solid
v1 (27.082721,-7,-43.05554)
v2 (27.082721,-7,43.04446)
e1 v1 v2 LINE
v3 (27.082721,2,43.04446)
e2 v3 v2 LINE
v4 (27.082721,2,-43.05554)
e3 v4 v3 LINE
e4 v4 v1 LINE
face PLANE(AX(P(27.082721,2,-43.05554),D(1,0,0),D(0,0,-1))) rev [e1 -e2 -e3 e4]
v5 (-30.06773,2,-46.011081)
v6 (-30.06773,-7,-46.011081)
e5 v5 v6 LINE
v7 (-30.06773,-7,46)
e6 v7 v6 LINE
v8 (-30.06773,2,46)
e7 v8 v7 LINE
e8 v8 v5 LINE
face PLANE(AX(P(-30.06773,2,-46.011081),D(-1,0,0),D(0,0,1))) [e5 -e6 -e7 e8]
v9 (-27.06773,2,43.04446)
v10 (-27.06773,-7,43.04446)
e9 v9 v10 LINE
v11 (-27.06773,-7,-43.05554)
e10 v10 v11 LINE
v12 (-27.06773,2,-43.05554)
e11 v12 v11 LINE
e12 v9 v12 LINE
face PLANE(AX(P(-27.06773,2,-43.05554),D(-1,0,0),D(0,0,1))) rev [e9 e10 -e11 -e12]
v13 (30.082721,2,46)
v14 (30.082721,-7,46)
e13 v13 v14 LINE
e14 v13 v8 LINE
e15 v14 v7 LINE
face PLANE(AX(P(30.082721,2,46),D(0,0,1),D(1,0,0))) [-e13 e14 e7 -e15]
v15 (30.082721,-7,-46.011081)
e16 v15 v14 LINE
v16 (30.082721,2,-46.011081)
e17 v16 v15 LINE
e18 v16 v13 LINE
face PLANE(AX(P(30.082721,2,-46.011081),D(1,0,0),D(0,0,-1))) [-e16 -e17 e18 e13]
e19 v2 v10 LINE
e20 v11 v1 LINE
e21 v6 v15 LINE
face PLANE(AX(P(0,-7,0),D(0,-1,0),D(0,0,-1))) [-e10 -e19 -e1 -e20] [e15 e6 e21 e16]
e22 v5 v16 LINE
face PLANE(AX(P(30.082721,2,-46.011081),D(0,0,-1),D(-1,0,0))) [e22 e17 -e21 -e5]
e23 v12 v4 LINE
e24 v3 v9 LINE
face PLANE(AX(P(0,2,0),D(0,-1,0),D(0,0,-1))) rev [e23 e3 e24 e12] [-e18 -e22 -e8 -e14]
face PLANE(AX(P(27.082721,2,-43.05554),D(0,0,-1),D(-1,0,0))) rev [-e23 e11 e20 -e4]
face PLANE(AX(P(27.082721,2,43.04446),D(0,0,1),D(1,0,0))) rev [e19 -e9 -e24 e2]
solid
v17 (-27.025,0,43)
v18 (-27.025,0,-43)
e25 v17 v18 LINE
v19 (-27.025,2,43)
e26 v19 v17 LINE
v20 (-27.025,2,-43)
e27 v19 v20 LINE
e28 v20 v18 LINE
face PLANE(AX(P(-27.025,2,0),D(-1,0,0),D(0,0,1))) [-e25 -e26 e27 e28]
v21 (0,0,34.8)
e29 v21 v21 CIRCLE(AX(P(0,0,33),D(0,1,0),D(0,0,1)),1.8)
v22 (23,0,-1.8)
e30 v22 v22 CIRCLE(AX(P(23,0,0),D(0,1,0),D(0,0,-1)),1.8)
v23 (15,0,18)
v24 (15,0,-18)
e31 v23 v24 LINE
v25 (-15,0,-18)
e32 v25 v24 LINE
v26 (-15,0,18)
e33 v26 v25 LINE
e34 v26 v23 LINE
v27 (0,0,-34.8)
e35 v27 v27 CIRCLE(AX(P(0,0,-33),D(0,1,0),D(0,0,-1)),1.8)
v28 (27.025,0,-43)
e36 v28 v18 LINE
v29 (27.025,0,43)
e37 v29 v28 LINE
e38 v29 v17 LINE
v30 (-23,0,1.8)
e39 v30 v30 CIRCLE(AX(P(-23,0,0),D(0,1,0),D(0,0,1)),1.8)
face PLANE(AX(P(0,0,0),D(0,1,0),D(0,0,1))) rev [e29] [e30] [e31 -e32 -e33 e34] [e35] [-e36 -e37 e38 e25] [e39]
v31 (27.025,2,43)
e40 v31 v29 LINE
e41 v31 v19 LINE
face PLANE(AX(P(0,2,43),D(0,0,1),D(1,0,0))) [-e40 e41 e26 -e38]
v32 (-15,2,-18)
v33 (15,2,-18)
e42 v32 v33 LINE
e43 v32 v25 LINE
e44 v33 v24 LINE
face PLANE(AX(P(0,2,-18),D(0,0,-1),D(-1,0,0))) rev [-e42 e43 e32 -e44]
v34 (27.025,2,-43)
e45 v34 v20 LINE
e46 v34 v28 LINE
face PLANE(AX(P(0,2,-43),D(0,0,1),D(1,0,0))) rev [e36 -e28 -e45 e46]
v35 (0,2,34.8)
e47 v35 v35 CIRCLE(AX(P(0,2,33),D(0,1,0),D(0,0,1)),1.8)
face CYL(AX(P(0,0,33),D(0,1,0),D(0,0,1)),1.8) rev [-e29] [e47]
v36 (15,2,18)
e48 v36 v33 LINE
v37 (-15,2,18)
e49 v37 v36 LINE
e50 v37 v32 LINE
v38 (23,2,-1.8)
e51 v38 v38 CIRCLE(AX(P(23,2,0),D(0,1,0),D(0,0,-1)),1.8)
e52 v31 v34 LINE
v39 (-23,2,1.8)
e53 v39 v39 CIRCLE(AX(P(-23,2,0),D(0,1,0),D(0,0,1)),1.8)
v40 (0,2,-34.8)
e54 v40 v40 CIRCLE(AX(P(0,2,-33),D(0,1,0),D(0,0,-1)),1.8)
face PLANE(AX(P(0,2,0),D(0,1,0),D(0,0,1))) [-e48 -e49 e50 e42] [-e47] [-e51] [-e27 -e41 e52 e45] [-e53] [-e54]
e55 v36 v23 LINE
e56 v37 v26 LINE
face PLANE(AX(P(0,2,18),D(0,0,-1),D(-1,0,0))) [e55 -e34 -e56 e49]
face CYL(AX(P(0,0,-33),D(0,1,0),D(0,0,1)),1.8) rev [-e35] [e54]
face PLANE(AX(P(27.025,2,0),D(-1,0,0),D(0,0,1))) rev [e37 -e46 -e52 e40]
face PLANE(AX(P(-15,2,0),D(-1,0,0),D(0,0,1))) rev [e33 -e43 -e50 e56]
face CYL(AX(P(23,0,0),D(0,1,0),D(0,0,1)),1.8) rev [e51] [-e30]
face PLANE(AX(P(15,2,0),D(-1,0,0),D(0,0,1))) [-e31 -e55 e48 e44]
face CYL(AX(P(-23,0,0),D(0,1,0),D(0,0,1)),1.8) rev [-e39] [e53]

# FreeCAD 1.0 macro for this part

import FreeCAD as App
import Part
import Sketcher
from FreeCAD import Vector
Q = App.Units.Quantity

doc = App.newDocument("Part")
body = doc.addObject("PartDesign::Body", "Body")

# Sketch on XZ plane
sketch1 = body.newObject("Sketcher::SketchObject", "Sketch")
sketch1.AttachmentSupport = (doc.getObject("XZ_Plane"), [""])
sketch1.MapMode = "FlatFace"
sketch1.addGeometry(Part.LineSegment(Vector(-27, -43, 0), Vector(-27, 43, 0)), False)
sketch1.addGeometry(Part.LineSegment(Vector(-27, 43, 0), Vector(27, 43, 0)), False)
sketch1.addGeometry(Part.LineSegment(Vector(27, 43, 0), Vector(27, -43, 0)), False)
sketch1.addGeometry(Part.LineSegment(Vector(27, -43, 0), Vector(-27, -43, 0)), False)
sketch1.addGeometry(Part.LineSegment(Vector(15, 18, 0), Vector(-15, 18, 0)), False)
sketch1.addGeometry(Part.LineSegment(Vector(-15, 18, 0), Vector(-15, -18, 0)), False)
sketch1.addGeometry(Part.LineSegment(Vector(-15, -18, 0), Vector(15, -18, 0)), False)
sketch1.addGeometry(Part.LineSegment(Vector(15, -18, 0), Vector(15, 18, 0)), False)
sketch1.addConstraint(Sketcher.Constraint("Coincident", 0, 2, 1, 1))
sketch1.addConstraint(Sketcher.Constraint("Coincident", 1, 2, 2, 1))
sketch1.addConstraint(Sketcher.Constraint("Coincident", 2, 2, 3, 1))
sketch1.addConstraint(Sketcher.Constraint("Coincident", 3, 2, 0, 1))
sketch1.addConstraint(Sketcher.Constraint("Coincident", 4, 2, 5, 1))
sketch1.addConstraint(Sketcher.Constraint("Coincident", 5, 2, 6, 1))
sketch1.addConstraint(Sketcher.Constraint("Coincident", 6, 2, 7, 1))
sketch1.addConstraint(Sketcher.Constraint("Coincident", 7, 2, 4, 1))
sketch1.addConstraint(Sketcher.Constraint("Vertical", 0))
sketch1.addConstraint(Sketcher.Constraint("Horizontal", 1))
sketch1.addConstraint(Sketcher.Constraint("Vertical", 2))
sketch1.addConstraint(Sketcher.Constraint("Horizontal", 3))
sketch1.addConstraint(Sketcher.Constraint("Horizontal", 4))
sketch1.addConstraint(Sketcher.Constraint("Vertical", 5))
sketch1.addConstraint(Sketcher.Constraint("Horizontal", 6))
sketch1.addConstraint(Sketcher.Constraint("Vertical", 7))
sketch1.addConstraint(Sketcher.Constraint("Symmetric", 0, 2, 2, 2, -1, 1))
sketch1.addConstraint(Sketcher.Constraint("Symmetric", 4, 2, 6, 2, -1, 1))
sketch1.addConstraint(Sketcher.Constraint("DistanceX", 4, 2, 4, 1, Q("30 mm")))
sketch1.addConstraint(Sketcher.Constraint("DistanceY", 0, 1, 0, 2, Q("86 mm")))
sketch1.addConstraint(Sketcher.Constraint("DistanceY", 5, 2, 5, 1, Q("36 mm")))
sketch1.addConstraint(Sketcher.Constraint("DistanceX", 1, 1, 1, 2, Q("54.05 mm")))
pad1 = body.newObject("PartDesign::Pad", "Pad")
pad1.Profile = sketch1
pad1.Length = 2
pad1.Reversed = True

# Sketch on XZ plane
sketch2 = body.newObject("Sketcher::SketchObject", "Sketch001")
sketch2.AttachmentSupport = (doc.getObject("XZ_Plane"), [""])
sketch2.MapMode = "FlatFace"
sketch2.AttachmentOffset = App.Placement(Vector(0, 0, -2), App.Rotation())
sketch2.addGeometry(Part.Circle(Vector(0, 33, 0), Vector(0, 0, 1), 1.8), False)
sketch2.addGeometry(Part.Circle(Vector(-23, 0, 0), Vector(0, 0, 1), 1.8), False)
sketch2.addGeometry(Part.Circle(Vector(0, -33, 0), Vector(0, 0, 1), 1.8), False)
sketch2.addGeometry(Part.Circle(Vector(23, 0, 0), Vector(0, 0, 1), 1.8), False)
sketch2.addConstraint(Sketcher.Constraint("Equal", 0, 1))
sketch2.addConstraint(Sketcher.Constraint("Equal", 1, 2))
sketch2.addConstraint(Sketcher.Constraint("Equal", 2, 3))
sketch2.addConstraint(Sketcher.Constraint("Symmetric", 0, 3, 2, 3, -1, 1))
sketch2.addConstraint(Sketcher.Constraint("Symmetric", 1, 3, 3, 3, -1, 1))
sketch2.addConstraint(Sketcher.Constraint("PointOnObject", 0, 3, -2))
sketch2.addConstraint(Sketcher.Constraint("PointOnObject", 1, 3, -1))
sketch2.addConstraint(Sketcher.Constraint("Diameter", 0, Q("3.6 mm")))
sketch2.addConstraint(Sketcher.Constraint("DistanceY", -1, 1, 0, 3, Q("33 mm")))
sketch2.addConstraint(Sketcher.Constraint("DistanceX", 1, 3, -1, 1, Q("23 mm")))
pocket1 = body.newObject("PartDesign::Pocket", "Pocket")
pocket1.Profile = sketch2
pocket1.Length = 2
pocket1.Reversed = True
body2 = doc.addObject("PartDesign::Body", "Body001")

# Sketch on XZ plane
sketch3 = body2.newObject("Sketcher::SketchObject", "Sketch002")
sketch3.AttachmentSupport = (doc.getObject("XZ_Plane001"), [""])
sketch3.MapMode = "FlatFace"
sketch3.addGeometry(Part.LineSegment(Vector(-30, 46, 0), Vector(-30, -46, 0)), False)
sketch3.addGeometry(Part.LineSegment(Vector(-30, -46, 0), Vector(30, -46, 0)), False)
sketch3.addGeometry(Part.LineSegment(Vector(30, -46, 0), Vector(30, 46, 0)), False)
sketch3.addGeometry(Part.LineSegment(Vector(30, 46, 0), Vector(-30, 46, 0)), False)
sketch3.addGeometry(Part.LineSegment(Vector(27, -43, 0), Vector(-27, -43, 0)), False)
sketch3.addGeometry(Part.LineSegment(Vector(-27, -43, 0), Vector(-27, 43, 0)), False)
sketch3.addGeometry(Part.LineSegment(Vector(-27, 43, 0), Vector(27, 43, 0)), False)
sketch3.addGeometry(Part.LineSegment(Vector(27, 43, 0), Vector(27, -43, 0)), False)
sketch3.addConstraint(Sketcher.Constraint("Coincident", 0, 2, 1, 1))
sketch3.addConstraint(Sketcher.Constraint("Coincident", 1, 2, 2, 1))
sketch3.addConstraint(Sketcher.Constraint("Coincident", 2, 2, 3, 1))
sketch3.addConstraint(Sketcher.Constraint("Coincident", 3, 2, 0, 1))
sketch3.addConstraint(Sketcher.Constraint("Coincident", 4, 2, 5, 1))
sketch3.addConstraint(Sketcher.Constraint("Coincident", 5, 2, 6, 1))
sketch3.addConstraint(Sketcher.Constraint("Coincident", 6, 2, 7, 1))
sketch3.addConstraint(Sketcher.Constraint("Coincident", 7, 2, 4, 1))
sketch3.addConstraint(Sketcher.Constraint("Vertical", 0))
sketch3.addConstraint(Sketcher.Constraint("Horizontal", 1))
sketch3.addConstraint(Sketcher.Constraint("Vertical", 2))
sketch3.addConstraint(Sketcher.Constraint("Horizontal", 3))
sketch3.addConstraint(Sketcher.Constraint("Horizontal", 4))
sketch3.addConstraint(Sketcher.Constraint("Vertical", 5))
sketch3.addConstraint(Sketcher.Constraint("Horizontal", 6))
sketch3.addConstraint(Sketcher.Constraint("Vertical", 7))
sketch3.addConstraint(Sketcher.Constraint("DistanceY", 5, 1, 5, 2, Q("86.1 mm")))
sketch3.addConstraint(Sketcher.Constraint("DistanceY", -1, 1, 2, 2, Q("46 mm")))
sketch3.addConstraint(Sketcher.Constraint("DistanceX", 0, 2, 4, 2, Q("3 mm")))
sketch3.addConstraint(Sketcher.Constraint("DistanceX", 6, 2, 2, 2, Q("3 mm")))
sketch3.addConstraint(Sketcher.Constraint("DistanceX", 1, 1, 1, 2, Q("60.15045 mm")))
sketch3.addConstraint(Sketcher.Constraint("DistanceY", 0, 2, 0, 1, Q("92.011081 mm")))
sketch3.addConstraint(Sketcher.Constraint("DistanceX", 0, 2, -1, 1, Q("30.06773 mm")))
sketch3.addConstraint(Sketcher.Constraint("DistanceY", 4, 2, -1, 1, Q("43.05554 mm")))
pad2 = body2.newObject("PartDesign::Pad", "Pad001")
pad2.Profile = sketch3
pad2.Type = "TwoLengths"
pad2.Length = 7
pad2.Length2 = 2

doc.recompute()
